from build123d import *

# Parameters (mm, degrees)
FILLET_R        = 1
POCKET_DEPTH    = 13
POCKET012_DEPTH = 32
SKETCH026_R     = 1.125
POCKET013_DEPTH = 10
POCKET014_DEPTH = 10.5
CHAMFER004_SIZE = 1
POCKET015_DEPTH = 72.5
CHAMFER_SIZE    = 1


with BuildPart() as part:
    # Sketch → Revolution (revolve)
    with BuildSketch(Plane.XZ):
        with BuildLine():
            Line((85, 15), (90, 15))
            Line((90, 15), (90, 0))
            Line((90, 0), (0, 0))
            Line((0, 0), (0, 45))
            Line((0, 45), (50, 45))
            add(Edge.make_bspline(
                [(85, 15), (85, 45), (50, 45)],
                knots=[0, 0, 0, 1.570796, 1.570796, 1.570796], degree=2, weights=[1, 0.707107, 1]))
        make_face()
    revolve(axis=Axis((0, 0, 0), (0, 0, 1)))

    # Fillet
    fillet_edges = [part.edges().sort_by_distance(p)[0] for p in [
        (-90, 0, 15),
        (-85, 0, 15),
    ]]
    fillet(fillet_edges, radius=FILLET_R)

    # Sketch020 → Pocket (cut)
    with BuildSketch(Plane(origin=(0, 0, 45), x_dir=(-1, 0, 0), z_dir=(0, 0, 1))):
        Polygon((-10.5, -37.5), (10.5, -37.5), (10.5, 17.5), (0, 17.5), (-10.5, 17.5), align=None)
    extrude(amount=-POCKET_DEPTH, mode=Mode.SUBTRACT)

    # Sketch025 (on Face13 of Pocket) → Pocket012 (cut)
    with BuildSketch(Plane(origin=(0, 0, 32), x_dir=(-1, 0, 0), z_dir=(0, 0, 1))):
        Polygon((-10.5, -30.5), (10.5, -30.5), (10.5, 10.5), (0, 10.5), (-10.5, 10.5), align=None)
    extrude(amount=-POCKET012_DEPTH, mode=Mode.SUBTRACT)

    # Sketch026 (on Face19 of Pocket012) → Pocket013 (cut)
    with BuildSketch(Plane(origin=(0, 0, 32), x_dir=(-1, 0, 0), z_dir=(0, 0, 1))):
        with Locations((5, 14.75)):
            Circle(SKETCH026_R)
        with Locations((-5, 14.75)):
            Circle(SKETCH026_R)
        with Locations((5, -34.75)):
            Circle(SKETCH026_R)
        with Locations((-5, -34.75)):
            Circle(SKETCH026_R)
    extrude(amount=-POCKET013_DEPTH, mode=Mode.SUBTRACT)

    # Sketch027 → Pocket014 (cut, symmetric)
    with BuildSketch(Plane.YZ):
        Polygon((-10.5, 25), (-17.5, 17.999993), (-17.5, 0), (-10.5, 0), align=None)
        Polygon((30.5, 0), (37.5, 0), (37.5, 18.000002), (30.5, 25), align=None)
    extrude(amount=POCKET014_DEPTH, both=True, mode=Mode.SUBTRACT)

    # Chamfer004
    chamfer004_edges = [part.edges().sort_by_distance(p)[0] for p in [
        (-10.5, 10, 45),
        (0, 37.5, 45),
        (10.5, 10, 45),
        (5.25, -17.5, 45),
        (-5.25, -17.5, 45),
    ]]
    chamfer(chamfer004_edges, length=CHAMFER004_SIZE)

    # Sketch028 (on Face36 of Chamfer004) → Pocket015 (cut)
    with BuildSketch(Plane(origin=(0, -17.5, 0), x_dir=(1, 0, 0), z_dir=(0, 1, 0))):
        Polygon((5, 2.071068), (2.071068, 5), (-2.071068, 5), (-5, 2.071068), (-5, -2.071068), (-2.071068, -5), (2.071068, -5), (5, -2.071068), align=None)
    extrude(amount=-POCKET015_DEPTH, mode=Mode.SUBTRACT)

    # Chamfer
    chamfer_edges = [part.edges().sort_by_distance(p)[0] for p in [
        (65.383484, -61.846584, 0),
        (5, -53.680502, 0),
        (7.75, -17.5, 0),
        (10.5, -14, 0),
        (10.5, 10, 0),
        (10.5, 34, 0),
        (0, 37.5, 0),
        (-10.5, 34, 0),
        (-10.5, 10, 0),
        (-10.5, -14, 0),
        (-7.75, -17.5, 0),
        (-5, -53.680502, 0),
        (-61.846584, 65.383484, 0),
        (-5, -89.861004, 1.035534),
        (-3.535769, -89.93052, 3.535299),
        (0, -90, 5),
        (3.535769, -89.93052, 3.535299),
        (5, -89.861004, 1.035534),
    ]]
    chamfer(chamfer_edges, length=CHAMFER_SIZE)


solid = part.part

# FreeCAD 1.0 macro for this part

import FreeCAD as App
import Part
import Sketcher
Q = App.Units.Quantity


def edges_at(feature, points):
    """Names of the edges that pass closest to the given points."""
    edges = feature.Shape.Edges
    near = lambda p: min(range(len(edges)), key=lambda i: edges[i].distToShape(Part.Vertex(*p))[0])
    return sorted({f"Edge{near(p) + 1}" for p in points})

doc = App.newDocument("Part")
params = doc.addObject("Spreadsheet::Sheet", "Params")
for row, (alias, value) in enumerate([
    ("sketch1_width", "5 mm"),
    ("revolution_angle", "360 deg"),
    ("fillet_radius", "1 mm"),
    ("sketch2_width", "21 mm"),
    ("sketch2_height", "55 mm"),
    ("pocket1_length", "13 mm"),
    ("sketch3_width", "21 mm"),
    ("sketch3_height", "41 mm"),
    ("pocket2_length", "32 mm"),
    ("sketch4_diameter", "2.25 mm"),
    ("pocket3_length", "10 mm"),
    ("sketch5_width", "7 mm"),
    ("sketch5_height", "25 mm"),
    ("sketch5_height2", "18.000002 mm"),
    ("pocket4_length", "21 mm"),
    ("chamfer_size", "1 mm"),
    ("pocket5_length", "72.5 mm"),
    ("chamfer2_size", "1 mm"),
], start=1):
    params.set(f"A{row}", alias)
    params.set(f"B{row}", "=" + value)
    params.setAlias(f"B{row}", alias)

body = doc.addObject("PartDesign::Body", "Body")

# Sketch on XZ plane
sketch1 = body.newObject("Sketcher::SketchObject", "Sketch")
sketch1.AttachmentSupport = (doc.getObject("XZ_Plane"), [""])
sketch1.MapMode = "FlatFace"
sketch1.addGeometry([
    Part.LineSegment(App.Vector(90, 15, 0), App.Vector(85, 15, 0)),  # 0
    Part.BSplineCurve([App.Vector(85, 15, 0), App.Vector(85, 45, 0), App.Vector(50, 45, 0)], [3, 3], [0, 1.570796], False, 2, [1, 0.707107, 1], False),  # 1
    Part.LineSegment(App.Vector(50, 45, 0), App.Vector(0, 45, 0)),  # 2
    Part.LineSegment(App.Vector(0, 45, 0), App.Vector(0, 0, 0)),  # 3
    Part.LineSegment(App.Vector(0, 0, 0), App.Vector(90, 0, 0)),  # 4
    Part.LineSegment(App.Vector(90, 0, 0), App.Vector(90, 15, 0)),  # 5
], False)
sketch1.addConstraint([
    Sketcher.Constraint("Block", 1),
    Sketcher.Constraint("Coincident", 0, 2, 1, 1),
    Sketcher.Constraint("Coincident", 1, 2, 2, 1),
    Sketcher.Constraint("Coincident", 2, 2, 3, 1),
    Sketcher.Constraint("Coincident", 3, 2, 4, 1),
    Sketcher.Constraint("Coincident", 4, 2, 5, 1),
    Sketcher.Constraint("Coincident", 5, 2, 0, 1),
    Sketcher.Constraint("Horizontal", 0),
    Sketcher.Constraint("Horizontal", 2),
    Sketcher.Constraint("Vertical", 3),
    Sketcher.Constraint("Horizontal", 4),
    Sketcher.Constraint("Vertical", 5),
    Sketcher.Constraint("Coincident", 3, 2, -1, 1),
    Sketcher.Constraint("DistanceX", 0, 2, 0, 1, Q("5 mm")),
])
sketch1.setExpression("Constraints[13]", "Params.sketch1_width")
revolution = body.newObject("PartDesign::Revolution", "Revolution")
revolution.Profile = sketch1
revolution.ReferenceAxis = (sketch1, ["V_Axis"])
revolution.setExpression("Angle", "Params.revolution_angle")
doc.recompute()

fillet = body.newObject("PartDesign::Fillet", "Fillet")
fillet.Base = (revolution, edges_at(revolution, [(-90, 0, 15), (-85, 0, 15)]))
fillet.setExpression("Radius", "Params.fillet_radius")

# Sketch on XY plane
sketch2 = body.newObject("Sketcher::SketchObject", "Sketch001")
sketch2.AttachmentSupport = (doc.getObject("XY_Plane"), [""])
sketch2.MapMode = "FlatFace"
sketch2.AttachmentOffset = App.Placement(App.Vector(0, 0, 45), App.Rotation())
sketch2.addGeometry([
    Part.LineSegment(App.Vector(10.5, 37.5, 0), App.Vector(-10.5, 37.5, 0)),
    Part.LineSegment(App.Vector(-10.5, 37.5, 0), App.Vector(-10.5, -17.5, 0)),
    Part.LineSegment(App.Vector(-10.5, -17.5, 0), App.Vector(10.5, -17.5, 0)),
    Part.LineSegment(App.Vector(10.5, -17.5, 0), App.Vector(10.5, 37.5, 0)),
], False)
sketch2.addConstraint([
    Sketcher.Constraint("Coincident", 0, 2, 1, 1),
    Sketcher.Constraint("Coincident", 1, 2, 2, 1),
    Sketcher.Constraint("Coincident", 2, 2, 3, 1),
    Sketcher.Constraint("Coincident", 3, 2, 0, 1),
    Sketcher.Constraint("Horizontal", 0),
    Sketcher.Constraint("Vertical", 1),
    Sketcher.Constraint("Horizontal", 2),
    Sketcher.Constraint("Vertical", 3),
    Sketcher.Constraint("DistanceX", 0, 2, 0, 1, Q("21 mm")),
    Sketcher.Constraint("DistanceY", 1, 2, 1, 1, Q("55 mm")),
    Sketcher.Constraint("DistanceX", 0, 2, -1, 1, Q("10.5 mm")),
    Sketcher.Constraint("DistanceY", -1, 1, 0, 2, Q("37.5 mm")),
])
sketch2.setExpression("Constraints[8]", "Params.sketch2_width")
sketch2.setExpression("Constraints[9]", "Params.sketch2_height")
pocket1 = body.newObject("PartDesign::Pocket", "Pocket")
pocket1.Profile = sketch2
pocket1.setExpression("Length", "Params.pocket1_length")

# Sketch on XY plane
sketch3 = body.newObject("Sketcher::SketchObject", "Sketch002")
sketch3.AttachmentSupport = (doc.getObject("XY_Plane"), [""])
sketch3.MapMode = "FlatFace"
sketch3.AttachmentOffset = App.Placement(App.Vector(0, 0, 32), App.Rotation())
sketch3.addGeometry([
    Part.LineSegment(App.Vector(10.5, 30.5, 0), App.Vector(-10.5, 30.5, 0)),
    Part.LineSegment(App.Vector(-10.5, 30.5, 0), App.Vector(-10.5, -10.5, 0)),
    Part.LineSegment(App.Vector(-10.5, -10.5, 0), App.Vector(10.5, -10.5, 0)),
    Part.LineSegment(App.Vector(10.5, -10.5, 0), App.Vector(10.5, 30.5, 0)),
], False)
sketch3.addConstraint([
    Sketcher.Constraint("Coincident", 0, 2, 1, 1),
    Sketcher.Constraint("Coincident", 1, 2, 2, 1),
    Sketcher.Constraint("Coincident", 2, 2, 3, 1),
    Sketcher.Constraint("Coincident", 3, 2, 0, 1),
    Sketcher.Constraint("Horizontal", 0),
    Sketcher.Constraint("Vertical", 1),
    Sketcher.Constraint("Horizontal", 2),
    Sketcher.Constraint("Vertical", 3),
    Sketcher.Constraint("DistanceX", 0, 2, 0, 1, Q("21 mm")),
    Sketcher.Constraint("DistanceY", 1, 2, 1, 1, Q("41 mm")),
    Sketcher.Constraint("DistanceX", 0, 2, -1, 1, Q("10.5 mm")),
    Sketcher.Constraint("DistanceY", -1, 1, 0, 2, Q("30.5 mm")),
])
sketch3.setExpression("Constraints[8]", "Params.sketch3_width")
sketch3.setExpression("Constraints[9]", "Params.sketch3_height")
pocket2 = body.newObject("PartDesign::Pocket", "Pocket001")
pocket2.Profile = sketch3
pocket2.setExpression("Length", "Params.pocket2_length")

# Sketch on XY plane
sketch4 = body.newObject("Sketcher::SketchObject", "Sketch003")
sketch4.AttachmentSupport = (doc.getObject("XY_Plane"), [""])
sketch4.MapMode = "FlatFace"
sketch4.AttachmentOffset = App.Placement(App.Vector(0, 0, 32), App.Rotation())
sketch4.addGeometry([
    Part.Circle(App.Vector(-5, -14.75, 0), App.Vector(0, 0, 1), 1.125),
    Part.Circle(App.Vector(5, -14.75, 0), App.Vector(0, 0, 1), 1.125),
    Part.Circle(App.Vector(-5, 34.75, 0), App.Vector(0, 0, 1), 1.125),
    Part.Circle(App.Vector(5, 34.75, 0), App.Vector(0, 0, 1), 1.125),
], False)
sketch4.addConstraint([
    Sketcher.Constraint("Equal", 0, 1),
    Sketcher.Constraint("Equal", 1, 2),
    Sketcher.Constraint("Equal", 2, 3),
    Sketcher.Constraint("Symmetric", 0, 3, 1, 3, -2),
    Sketcher.Constraint("Symmetric", 2, 3, 3, 3, -2),
    Sketcher.Constraint("Vertical", 0, 3, 2, 3),
    Sketcher.Constraint("Diameter", 0, Q("2.25 mm")),
    Sketcher.Constraint("DistanceX", 0, 3, -1, 1, Q("5 mm")),
    Sketcher.Constraint("DistanceY", 0, 3, 2, 3, Q("49.5 mm")),
    Sketcher.Constraint("DistanceY", 0, 3, -1, 1, Q("14.75 mm")),
])
sketch4.setExpression("Constraints[6]", "Params.sketch4_diameter")
pocket3 = body.newObject("PartDesign::Pocket", "Pocket002")
pocket3.Profile = sketch4
pocket3.setExpression("Length", "Params.pocket3_length")

# Sketch on YZ plane
sketch5 = body.newObject("Sketcher::SketchObject", "Sketch004")
sketch5.AttachmentSupport = (doc.getObject("YZ_Plane"), [""])
sketch5.MapMode = "FlatFace"
sketch5.addGeometry([
    Part.LineSegment(App.Vector(-10.5, 25, 0), App.Vector(-17.5, 17.999993, 0)),  # 0
    Part.LineSegment(App.Vector(-17.5, 17.999993, 0), App.Vector(-17.5, 0, 0)),  # 1
    Part.LineSegment(App.Vector(-17.5, 0, 0), App.Vector(-10.5, 0, 0)),  # 2
    Part.LineSegment(App.Vector(-10.5, 0, 0), App.Vector(-10.5, 25, 0)),  # 3
    Part.LineSegment(App.Vector(30.5, 0, 0), App.Vector(37.5, 0, 0)),  # 4
    Part.LineSegment(App.Vector(37.5, 0, 0), App.Vector(37.5, 18.000002, 0)),  # 5
    Part.LineSegment(App.Vector(37.5, 18.000002, 0), App.Vector(30.5, 25, 0)),  # 6
    Part.LineSegment(App.Vector(30.5, 25, 0), App.Vector(30.5, 0, 0)),  # 7
], False)
sketch5.addConstraint([
    Sketcher.Constraint("Coincident", 0, 2, 1, 1),
    Sketcher.Constraint("Coincident", 1, 2, 2, 1),
    Sketcher.Constraint("Coincident", 2, 2, 3, 1),
    Sketcher.Constraint("Coincident", 3, 2, 0, 1),
    Sketcher.Constraint("Coincident", 4, 2, 5, 1),
    Sketcher.Constraint("Coincident", 5, 2, 6, 1),
    Sketcher.Constraint("Coincident", 6, 2, 7, 1),
    Sketcher.Constraint("Coincident", 7, 2, 4, 1),
    Sketcher.Constraint("Vertical", 1),
    Sketcher.Constraint("Horizontal", 2),
    Sketcher.Constraint("Vertical", 3),
    Sketcher.Constraint("Horizontal", 4),
    Sketcher.Constraint("Vertical", 5),
    Sketcher.Constraint("Vertical", 7),
    Sketcher.Constraint("PointOnObject", 1, 2, -1),
    Sketcher.Constraint("PointOnObject", 4, 2, -1),
    Sketcher.Constraint("Perpendicular", 0, 6),
    Sketcher.Constraint("Horizontal", 3, 2, 6, 2),
    Sketcher.Constraint("Equal", 2, 4),
    Sketcher.Constraint("DistanceX", 2, 1, 2, 2, Q("7 mm")),
    Sketcher.Constraint("DistanceY", 3, 1, 3, 2, Q("25 mm")),
    Sketcher.Constraint("DistanceY", 5, 1, 5, 2, Q("18.000002 mm")),
    Sketcher.Constraint("DistanceX", 2, 2, 4, 2, Q("48 mm")),
    Sketcher.Constraint("DistanceX", 0, 2, -1, 1, Q("17.5 mm")),
])
sketch5.setExpression("Constraints[19]", "Params.sketch5_width")
sketch5.setExpression("Constraints[20]", "Params.sketch5_height")
sketch5.setExpression("Constraints[21]", "Params.sketch5_height2")
pocket4 = body.newObject("PartDesign::Pocket", "Pocket003")
pocket4.Profile = sketch5
pocket4.setExpression("Length", "Params.pocket4_length")
pocket4.Midplane = True
doc.recompute()

chamfer = body.newObject("PartDesign::Chamfer", "Chamfer")
chamfer.Base = (pocket4, edges_at(pocket4, [
    (-10.5, 10, 45),
    (0, 37.5, 45),
    (10.5, 10, 45),
    (0, -17.5, 45),
    (0, -17.5, 45),
]))
chamfer.setExpression("Size", "Params.chamfer_size")

# Sketch on XZ plane
sketch6 = body.newObject("Sketcher::SketchObject", "Sketch005")
sketch6.AttachmentSupport = (doc.getObject("XZ_Plane"), [""])
sketch6.MapMode = "FlatFace"
sketch6.AttachmentOffset = App.Placement(App.Vector(0, 0, 17.5), App.Rotation())
sketch6.addGeometry([
    Part.LineSegment(App.Vector(5, -2.071068, 0), App.Vector(2.071068, -5, 0)),  # 0
    Part.LineSegment(App.Vector(2.071068, -5, 0), App.Vector(-2.071068, -5, 0)),  # 1
    Part.LineSegment(App.Vector(-2.071068, -5, 0), App.Vector(-5, -2.071068, 0)),  # 2
    Part.LineSegment(App.Vector(-5, -2.071068, 0), App.Vector(-5, 2.071068, 0)),  # 3
    Part.LineSegment(App.Vector(-5, 2.071068, 0), App.Vector(-2.071068, 5, 0)),  # 4
    Part.LineSegment(App.Vector(-2.071068, 5, 0), App.Vector(2.071068, 5, 0)),  # 5
    Part.LineSegment(App.Vector(2.071068, 5, 0), App.Vector(5, 2.071068, 0)),  # 6
    Part.LineSegment(App.Vector(5, 2.071068, 0), App.Vector(5, -2.071068, 0)),  # 7
], False)
sketch6.addConstraint([
    Sketcher.Constraint("Coincident", 0, 2, 1, 1),
    Sketcher.Constraint("Coincident", 1, 2, 2, 1),
    Sketcher.Constraint("Coincident", 2, 2, 3, 1),
    Sketcher.Constraint("Coincident", 3, 2, 4, 1),
    Sketcher.Constraint("Coincident", 4, 2, 5, 1),
    Sketcher.Constraint("Coincident", 5, 2, 6, 1),
    Sketcher.Constraint("Coincident", 6, 2, 7, 1),
    Sketcher.Constraint("Coincident", 7, 2, 0, 1),
    Sketcher.Constraint("Horizontal", 1),
    Sketcher.Constraint("Vertical", 3),
    Sketcher.Constraint("Horizontal", 5),
    Sketcher.Constraint("Vertical", 7),
    Sketcher.Constraint("Symmetric", 0, 2, 4, 2, -1, 1),
    Sketcher.Constraint("Symmetric", 2, 2, 6, 2, -1, 1),
    Sketcher.Constraint("Perpendicular", 0, 2),
    Sketcher.Constraint("Perpendicular", 2, 4),
    Sketcher.Constraint("Perpendicular", 4, 6),
    Sketcher.Constraint("Horizontal", 3, 2, 6, 2),
    Sketcher.Constraint("Vertical", 1, 2, 4, 2),
    Sketcher.Constraint("Equal", 5, 3),
    Sketcher.Constraint("DistanceY", 0, 2, -1, 1, Q("5 mm")),
    Sketcher.Constraint("DistanceX", 1, 2, 1, 1, Q("4.142136 mm")),
])
pocket5 = body.newObject("PartDesign::Pocket", "Pocket004")
pocket5.Profile = sketch6
pocket5.setExpression("Length", "Params.pocket5_length")
pocket5.Reversed = True
doc.recompute()

chamfer2 = body.newObject("PartDesign::Chamfer", "Chamfer001")
chamfer2.Base = (pocket5, edges_at(pocket5, [
    (65.383, -61.847, 0),
    (5, -53.681, 0),
    (7.75, -17.5, 0),
    (10.5, 10, 0),
    (10.5, 10, 0),
    (10.5, 10, 0),
    (0, 37.5, 0),
    (-10.5, 10, 0),
    (-10.5, 10, 0),
    (-10.5, 10, 0),
    (-7.75, -17.5, 0),
    (-5, -53.681, 0),
    (-61.847, 65.383, 0),
    (-5, -89.861, 1.036),
    (-3.536, -89.931, 3.535),
    (0, -90, 5),
    (3.536, -89.931, 3.535),
    (5, -89.861, 1.036),
]))
chamfer2.setExpression("Size", "Params.chamfer2_size")

doc.recompute()
